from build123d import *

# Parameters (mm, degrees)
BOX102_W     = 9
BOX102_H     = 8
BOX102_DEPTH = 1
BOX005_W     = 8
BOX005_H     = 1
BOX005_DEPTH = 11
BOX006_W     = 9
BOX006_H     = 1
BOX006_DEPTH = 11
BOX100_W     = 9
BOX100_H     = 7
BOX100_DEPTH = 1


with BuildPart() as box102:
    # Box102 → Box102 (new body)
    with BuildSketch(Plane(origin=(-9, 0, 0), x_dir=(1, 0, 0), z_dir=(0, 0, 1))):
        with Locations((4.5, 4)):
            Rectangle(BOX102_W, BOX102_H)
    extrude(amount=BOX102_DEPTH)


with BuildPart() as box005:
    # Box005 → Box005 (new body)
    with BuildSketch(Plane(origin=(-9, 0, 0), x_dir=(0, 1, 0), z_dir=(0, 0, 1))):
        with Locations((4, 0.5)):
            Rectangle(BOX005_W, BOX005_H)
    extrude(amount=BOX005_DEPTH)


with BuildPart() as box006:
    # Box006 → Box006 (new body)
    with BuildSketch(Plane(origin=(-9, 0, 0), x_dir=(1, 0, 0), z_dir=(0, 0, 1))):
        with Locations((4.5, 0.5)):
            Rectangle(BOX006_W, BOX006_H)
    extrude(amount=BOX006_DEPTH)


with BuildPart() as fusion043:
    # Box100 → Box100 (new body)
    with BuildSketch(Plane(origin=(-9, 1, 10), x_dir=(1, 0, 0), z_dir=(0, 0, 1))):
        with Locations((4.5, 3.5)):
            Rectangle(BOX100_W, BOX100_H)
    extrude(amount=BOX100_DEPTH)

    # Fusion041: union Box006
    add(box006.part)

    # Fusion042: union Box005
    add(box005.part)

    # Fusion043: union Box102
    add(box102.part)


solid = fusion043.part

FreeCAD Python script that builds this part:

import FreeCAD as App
import Part
import Sketcher

V = App.Vector

doc = App.newDocument("Part")
body = doc.addObject("PartDesign::Body", "Body")

# Sketch on XY plane
sketch1 = body.newObject("Sketcher::SketchObject", "Sketch")
sketch1.AttachmentSupport = (doc.getObject("XY_Plane"), [""])
sketch1.MapMode = "FlatFace"
sketch1.addGeometry(Part.LineSegment(V(-9, 8, 0), V(-9, 0, 0)), False)
sketch1.addGeometry(Part.LineSegment(V(-9, 0, 0), V(0, 0, 0)), False)
sketch1.addGeometry(Part.LineSegment(V(0, 0, 0), V(0, 8, 0)), False)
sketch1.addGeometry(Part.LineSegment(V(0, 8, 0), V(-9, 8, 0)), False)
sketch1.addConstraint(Sketcher.Constraint("Coincident", 0, 2, 1, 1))
sketch1.addConstraint(Sketcher.Constraint("Coincident", 1, 2, 2, 1))
sketch1.addConstraint(Sketcher.Constraint("Coincident", 2, 2, 3, 1))
sketch1.addConstraint(Sketcher.Constraint("Coincident", 3, 2, 0, 1))
sketch1.addConstraint(Sketcher.Constraint("Vertical", 0))
sketch1.addConstraint(Sketcher.Constraint("Horizontal", 1))
sketch1.addConstraint(Sketcher.Constraint("Vertical", 2))
sketch1.addConstraint(Sketcher.Constraint("Horizontal", 3))
sketch1.addConstraint(Sketcher.Constraint("Coincident", 1, 2, -1, 1))
sketch1.addConstraint(Sketcher.Constraint("DistanceX", 1, 1, 1, 2, 9.0))
sketch1.addConstraint(Sketcher.Constraint("DistanceY", 0, 2, 0, 1, 8.0))
pad1 = body.newObject("PartDesign::Pad", "Pad")
pad1.Profile = sketch1
pad1.Length = 1
body2 = doc.addObject("PartDesign::Body", "Body001")

# Sketch on XY plane
sketch2 = body2.newObject("Sketcher::SketchObject", "Sketch001")
sketch2.AttachmentSupport = (doc.getObject("XY_Plane001"), [""])
sketch2.MapMode = "FlatFace"
sketch2.addGeometry(Part.LineSegment(V(-10, 0, 0), V(-9, 0, 0)), False)
sketch2.addGeometry(Part.LineSegment(V(-9, 0, 0), V(-9, 8, 0)), False)
sketch2.addGeometry(Part.LineSegment(V(-9, 8, 0), V(-10, 8, 0)), False)
sketch2.addGeometry(Part.LineSegment(V(-10, 8, 0), V(-10, 0, 0)), False)
sketch2.addConstraint(Sketcher.Constraint("Coincident", 0, 2, 1, 1))
sketch2.addConstraint(Sketcher.Constraint("Coincident", 1, 2, 2, 1))
sketch2.addConstraint(Sketcher.Constraint("Coincident", 2, 2, 3, 1))
sketch2.addConstraint(Sketcher.Constraint("Coincident", 3, 2, 0, 1))
sketch2.addConstraint(Sketcher.Constraint("Horizontal", 0))
sketch2.addConstraint(Sketcher.Constraint("Vertical", 1))
sketch2.addConstraint(Sketcher.Constraint("Horizontal", 2))
sketch2.addConstraint(Sketcher.Constraint("Vertical", 3))
sketch2.addConstraint(Sketcher.Constraint("PointOnObject", 0, 2, -1))
sketch2.addConstraint(Sketcher.Constraint("DistanceX", 0, 1, 0, 2, 1.0))
sketch2.addConstraint(Sketcher.Constraint("DistanceY", 1, 1, 1, 2, 8.0))
sketch2.addConstraint(Sketcher.Constraint("DistanceX", 0, 2, -1, 1, 9.0))
pad2 = body2.newObject("PartDesign::Pad", "Pad001")
pad2.Profile = sketch2
pad2.Length = 11
body3 = doc.addObject("PartDesign::Body", "Body002")

# Sketch on XY plane
sketch3 = body3.newObject("Sketcher::SketchObject", "Sketch002")
sketch3.AttachmentSupport = (doc.getObject("XY_Plane002"), [""])
sketch3.MapMode = "FlatFace"
sketch3.addGeometry(Part.LineSegment(V(-9, 1, 0), V(-9, 0, 0)), False)
sketch3.addGeometry(Part.LineSegment(V(-9, 0, 0), V(0, 0, 0)), False)
sketch3.addGeometry(Part.LineSegment(V(0, 0, 0), V(0, 1, 0)), False)
sketch3.addGeometry(Part.LineSegment(V(0, 1, 0), V(-9, 1, 0)), False)
sketch3.addConstraint(Sketcher.Constraint("Coincident", 0, 2, 1, 1))
sketch3.addConstraint(Sketcher.Constraint("Coincident", 1, 2, 2, 1))
sketch3.addConstraint(Sketcher.Constraint("Coincident", 2, 2, 3, 1))
sketch3.addConstraint(Sketcher.Constraint("Coincident", 3, 2, 0, 1))
sketch3.addConstraint(Sketcher.Constraint("Vertical", 0))
sketch3.addConstraint(Sketcher.Constraint("Horizontal", 1))
sketch3.addConstraint(Sketcher.Constraint("Vertical", 2))
sketch3.addConstraint(Sketcher.Constraint("Horizontal", 3))
sketch3.addConstraint(Sketcher.Constraint("Coincident", 1, 2, -1, 1))
sketch3.addConstraint(Sketcher.Constraint("DistanceX", 1, 1, 1, 2, 9.0))
sketch3.addConstraint(Sketcher.Constraint("DistanceY", 0, 2, 0, 1, 1.0))
pad3 = body3.newObject("PartDesign::Pad", "Pad002")
pad3.Profile = sketch3
pad3.Length = 11
body4 = doc.addObject("PartDesign::Body", "Body003")

# Sketch on XY plane
sketch4 = body4.newObject("Sketcher::SketchObject", "Sketch003")
sketch4.AttachmentSupport = (doc.getObject("XY_Plane003"), [""])
sketch4.MapMode = "FlatFace"
sketch4.AttachmentOffset = App.Placement(V(0, 0, 10), App.Rotation())
sketch4.addGeometry(Part.LineSegment(V(-9, 8, 0), V(-9, 1, 0)), False)
sketch4.addGeometry(Part.LineSegment(V(-9, 1, 0), V(0, 1, 0)), False)
sketch4.addGeometry(Part.LineSegment(V(0, 1, 0), V(0, 8, 0)), False)
sketch4.addGeometry(Part.LineSegment(V(0, 8, 0), V(-9, 8, 0)), False)
sketch4.addConstraint(Sketcher.Constraint("Coincident", 0, 2, 1, 1))
sketch4.addConstraint(Sketcher.Constraint("Coincident", 1, 2, 2, 1))
sketch4.addConstraint(Sketcher.Constraint("Coincident", 2, 2, 3, 1))
sketch4.addConstraint(Sketcher.Constraint("Coincident", 3, 2, 0, 1))
sketch4.addConstraint(Sketcher.Constraint("Vertical", 0))
sketch4.addConstraint(Sketcher.Constraint("Horizontal", 1))
sketch4.addConstraint(Sketcher.Constraint("Vertical", 2))
sketch4.addConstraint(Sketcher.Constraint("Horizontal", 3))
sketch4.addConstraint(Sketcher.Constraint("PointOnObject", 1, 2, -2))
sketch4.addConstraint(Sketcher.Constraint("DistanceX", 1, 1, 1, 2, 9.0))
sketch4.addConstraint(Sketcher.Constraint("DistanceY", 0, 2, 0, 1, 7.0))
sketch4.addConstraint(Sketcher.Constraint("DistanceY", -1, 1, 0, 2, 1.0))
pad4 = body4.newObject("PartDesign::Pad", "Pad003")
pad4.Profile = sketch4
pad4.Length = 1
doc.recompute()

boolean = body4.newObject("PartDesign::Boolean", "Boolean")
boolean.Type = "Fuse"
boolean.addObjects([body3])
doc.recompute()

boolean2 = body4.newObject("PartDesign::Boolean", "Boolean001")
boolean2.Type = "Fuse"
boolean2.addObjects([body2])
doc.recompute()

boolean3 = body4.newObject("PartDesign::Boolean", "Boolean002")
boolean3.Type = "Fuse"
boolean3.addObjects([body])

doc.recompute()
